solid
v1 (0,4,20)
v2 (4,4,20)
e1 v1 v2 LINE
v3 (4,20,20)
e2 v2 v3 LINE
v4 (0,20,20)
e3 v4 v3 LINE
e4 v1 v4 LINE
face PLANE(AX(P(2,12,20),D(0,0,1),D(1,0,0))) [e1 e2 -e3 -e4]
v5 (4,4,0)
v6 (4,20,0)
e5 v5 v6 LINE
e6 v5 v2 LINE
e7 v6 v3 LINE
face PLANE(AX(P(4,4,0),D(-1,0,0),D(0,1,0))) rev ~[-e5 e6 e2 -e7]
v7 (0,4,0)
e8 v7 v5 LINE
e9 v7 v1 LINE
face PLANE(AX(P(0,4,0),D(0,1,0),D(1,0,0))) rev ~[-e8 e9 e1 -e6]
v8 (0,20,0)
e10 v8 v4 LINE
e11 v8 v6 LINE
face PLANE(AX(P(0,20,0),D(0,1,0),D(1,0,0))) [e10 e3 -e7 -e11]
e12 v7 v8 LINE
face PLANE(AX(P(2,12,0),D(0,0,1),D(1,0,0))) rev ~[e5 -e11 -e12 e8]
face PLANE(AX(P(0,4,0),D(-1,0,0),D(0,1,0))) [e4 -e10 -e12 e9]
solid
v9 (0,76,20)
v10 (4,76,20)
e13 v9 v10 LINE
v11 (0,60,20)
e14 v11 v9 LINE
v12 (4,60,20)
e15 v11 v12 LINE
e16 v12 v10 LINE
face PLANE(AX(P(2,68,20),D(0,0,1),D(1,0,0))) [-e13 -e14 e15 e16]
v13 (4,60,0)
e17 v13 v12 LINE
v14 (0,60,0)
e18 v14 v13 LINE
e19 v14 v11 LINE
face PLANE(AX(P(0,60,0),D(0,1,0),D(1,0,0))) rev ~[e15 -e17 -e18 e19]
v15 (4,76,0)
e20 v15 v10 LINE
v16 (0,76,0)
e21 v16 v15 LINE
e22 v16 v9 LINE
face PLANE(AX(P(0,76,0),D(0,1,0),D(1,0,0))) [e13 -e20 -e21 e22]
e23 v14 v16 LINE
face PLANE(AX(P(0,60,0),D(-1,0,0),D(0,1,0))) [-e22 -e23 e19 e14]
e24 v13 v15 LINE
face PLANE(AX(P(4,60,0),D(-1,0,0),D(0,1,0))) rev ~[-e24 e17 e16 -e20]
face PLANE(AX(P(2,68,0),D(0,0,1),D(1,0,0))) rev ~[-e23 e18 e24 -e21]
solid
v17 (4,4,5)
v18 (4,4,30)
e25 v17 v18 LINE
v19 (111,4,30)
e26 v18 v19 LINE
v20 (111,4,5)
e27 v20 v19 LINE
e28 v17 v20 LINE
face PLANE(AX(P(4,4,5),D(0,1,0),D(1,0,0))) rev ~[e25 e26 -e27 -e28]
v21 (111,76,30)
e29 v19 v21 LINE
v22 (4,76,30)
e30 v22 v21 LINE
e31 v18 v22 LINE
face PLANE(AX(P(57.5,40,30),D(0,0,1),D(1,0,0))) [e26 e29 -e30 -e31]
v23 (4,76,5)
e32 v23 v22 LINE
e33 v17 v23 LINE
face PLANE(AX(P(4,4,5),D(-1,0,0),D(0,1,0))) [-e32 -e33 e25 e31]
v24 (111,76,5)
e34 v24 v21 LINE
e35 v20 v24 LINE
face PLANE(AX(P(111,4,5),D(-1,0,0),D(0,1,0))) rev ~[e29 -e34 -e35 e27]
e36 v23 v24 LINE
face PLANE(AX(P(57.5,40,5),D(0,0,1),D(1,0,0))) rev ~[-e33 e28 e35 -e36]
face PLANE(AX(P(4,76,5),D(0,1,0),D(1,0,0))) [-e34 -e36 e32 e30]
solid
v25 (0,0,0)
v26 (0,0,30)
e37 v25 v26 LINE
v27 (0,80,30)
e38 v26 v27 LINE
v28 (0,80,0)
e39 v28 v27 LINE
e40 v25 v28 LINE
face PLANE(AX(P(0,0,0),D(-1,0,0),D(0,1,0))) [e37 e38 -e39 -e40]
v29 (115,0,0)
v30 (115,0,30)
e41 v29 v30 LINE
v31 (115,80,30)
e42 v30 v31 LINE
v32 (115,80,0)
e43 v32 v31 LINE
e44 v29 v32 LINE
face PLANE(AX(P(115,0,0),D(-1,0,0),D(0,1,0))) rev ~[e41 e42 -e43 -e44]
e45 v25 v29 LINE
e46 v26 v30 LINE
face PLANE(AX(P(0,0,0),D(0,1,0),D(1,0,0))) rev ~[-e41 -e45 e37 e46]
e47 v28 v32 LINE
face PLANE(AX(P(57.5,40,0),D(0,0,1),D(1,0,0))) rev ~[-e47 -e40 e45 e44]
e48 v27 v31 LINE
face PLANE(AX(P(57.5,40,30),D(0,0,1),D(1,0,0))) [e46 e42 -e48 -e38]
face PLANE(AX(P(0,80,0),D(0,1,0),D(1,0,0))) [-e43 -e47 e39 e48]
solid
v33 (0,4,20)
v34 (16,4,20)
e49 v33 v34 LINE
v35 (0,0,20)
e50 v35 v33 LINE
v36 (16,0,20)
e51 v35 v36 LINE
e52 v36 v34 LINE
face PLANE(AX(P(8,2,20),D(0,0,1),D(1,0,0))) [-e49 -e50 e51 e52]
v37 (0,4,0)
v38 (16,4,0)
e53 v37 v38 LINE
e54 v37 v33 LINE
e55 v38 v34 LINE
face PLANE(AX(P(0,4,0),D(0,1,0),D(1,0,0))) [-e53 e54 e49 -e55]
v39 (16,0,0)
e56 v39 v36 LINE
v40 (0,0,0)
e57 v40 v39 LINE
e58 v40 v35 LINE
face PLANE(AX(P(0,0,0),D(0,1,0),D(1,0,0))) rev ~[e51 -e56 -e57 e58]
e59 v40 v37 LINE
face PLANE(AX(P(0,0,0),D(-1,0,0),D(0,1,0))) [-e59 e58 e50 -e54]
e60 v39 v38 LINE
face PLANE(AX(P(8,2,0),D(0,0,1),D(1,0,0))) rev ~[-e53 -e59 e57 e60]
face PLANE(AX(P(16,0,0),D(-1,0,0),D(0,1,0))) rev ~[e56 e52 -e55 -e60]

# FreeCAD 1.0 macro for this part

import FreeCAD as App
import Part
import Sketcher

V = App.Vector

doc = App.newDocument("Part")
params = doc.addObject("Spreadsheet::Sheet", "Params")
for row, (alias, value) in enumerate([
    ("sketch1_width", "115 mm"),
    ("sketch1_height", "80 mm"),
    ("pad1_length", "30 mm"),
    ("sketch2_width", "107 mm"),
    ("sketch2_height", "72 mm"),
    ("pad2_length", "25 mm"),
    ("sketch3_width", "4 mm"),
    ("sketch3_height", "16 mm"),
    ("pad3_length", "20 mm"),
    ("sketch4_width", "4 mm"),
    ("sketch4_height", "16 mm"),
    ("pad4_length", "20 mm"),
    ("sketch5_width", "16 mm"),
    ("sketch5_height", "4 mm"),
    ("pad5_length", "20 mm"),
], start=1):
    params.set(f"A{row}", alias)
    params.set(f"B{row}", "=" + value)
    params.setAlias(f"B{row}", alias)

body = doc.addObject("PartDesign::Body", "Body")

sketch1 = doc.addObject("Sketcher::SketchObject", "Sketch")
body.addObject(sketch1)
sketch1.AttachmentSupport = (doc.XY_Plane, [""])
sketch1.MapMode = "FlatFace"
sketch1.addGeometry(Part.LineSegment(V(0, 80, 0), V(0, 0, 0)), False)
sketch1.addGeometry(Part.LineSegment(V(0, 0, 0), V(115, 0, 0)), False)
sketch1.addGeometry(Part.LineSegment(V(115, 0, 0), V(115, 80, 0)), False)
sketch1.addGeometry(Part.LineSegment(V(115, 80, 0), V(0, 80, 0)), False)
sketch1.addConstraint(Sketcher.Constraint("Coincident", 0, 2, 1, 1))
sketch1.addConstraint(Sketcher.Constraint("Coincident", 1, 2, 2, 1))
sketch1.addConstraint(Sketcher.Constraint("Coincident", 2, 2, 3, 1))
sketch1.addConstraint(Sketcher.Constraint("Coincident", 3, 2, 0, 1))
sketch1.addConstraint(Sketcher.Constraint("Vertical", 0))
sketch1.addConstraint(Sketcher.Constraint("Horizontal", 1))
sketch1.addConstraint(Sketcher.Constraint("Vertical", 2))
sketch1.addConstraint(Sketcher.Constraint("Horizontal", 3))
sketch1.addConstraint(Sketcher.Constraint("Coincident", 0, 2, -1, 1))
sketch1.addConstraint(Sketcher.Constraint("DistanceX", 1, 1, 1, 2, 115.0))
sketch1.addConstraint(Sketcher.Constraint("DistanceY", 0, 2, 0, 1, 80.0))
sketch1.setExpression("Constraints[9]", "Params.sketch1_width")
sketch1.setExpression("Constraints[10]", "Params.sketch1_height")
pad1 = doc.addObject("PartDesign::Pad", "Pad")
body.addObject(pad1)
pad1.Profile = sketch1
pad1.setExpression("Length", "Params.pad1_length")
body2 = doc.addObject("PartDesign::Body", "Body001")

sketch2 = doc.addObject("Sketcher::SketchObject", "Sketch001")
body2.addObject(sketch2)
sketch2.AttachmentSupport = (doc.getObject("XY_Plane001"), [""])
sketch2.MapMode = "FlatFace"
sketch2.AttachmentOffset = App.Placement(V(0, 0, 5), App.Rotation())
sketch2.addGeometry(Part.LineSegment(V(4, 76, 0), V(4, 4, 0)), False)
sketch2.addGeometry(Part.LineSegment(V(4, 4, 0), V(111, 4, 0)), False)
sketch2.addGeometry(Part.LineSegment(V(111, 4, 0), V(111, 76, 0)), False)
sketch2.addGeometry(Part.LineSegment(V(111, 76, 0), V(4, 76, 0)), False)
sketch2.addConstraint(Sketcher.Constraint("Coincident", 0, 2, 1, 1))
sketch2.addConstraint(Sketcher.Constraint("Coincident", 1, 2, 2, 1))
sketch2.addConstraint(Sketcher.Constraint("Coincident", 2, 2, 3, 1))
sketch2.addConstraint(Sketcher.Constraint("Coincident", 3, 2, 0, 1))
sketch2.addConstraint(Sketcher.Constraint("Vertical", 0))
sketch2.addConstraint(Sketcher.Constraint("Horizontal", 1))
sketch2.addConstraint(Sketcher.Constraint("Vertical", 2))
sketch2.addConstraint(Sketcher.Constraint("Horizontal", 3))
sketch2.addConstraint(Sketcher.Constraint("DistanceX", 1, 1, 1, 2, 107.0))
sketch2.addConstraint(Sketcher.Constraint("DistanceY", 0, 2, 0, 1, 72.0))
sketch2.addConstraint(Sketcher.Constraint("DistanceX", -1, 1, 0, 2, 4.0))
sketch2.addConstraint(Sketcher.Constraint("DistanceY", -1, 1, 0, 2, 4.0))
sketch2.setExpression("Constraints[8]", "Params.sketch2_width")
sketch2.setExpression("Constraints[9]", "Params.sketch2_height")
pad2 = doc.addObject("PartDesign::Pad", "Pad001")
body2.addObject(pad2)
pad2.Profile = sketch2
pad2.setExpression("Length", "Params.pad2_length")
body3 = doc.addObject("PartDesign::Body", "Body002")

sketch3 = doc.addObject("Sketcher::SketchObject", "Sketch002")
body3.addObject(sketch3)
sketch3.AttachmentSupport = (doc.getObject("XY_Plane002"), [""])
sketch3.MapMode = "FlatFace"
sketch3.addGeometry(Part.LineSegment(V(0, 20, 0), V(0, 4, 0)), False)
sketch3.addGeometry(Part.LineSegment(V(0, 4, 0), V(4, 4, 0)), False)
sketch3.addGeometry(Part.LineSegment(V(4, 4, 0), V(4, 20, 0)), False)
sketch3.addGeometry(Part.LineSegment(V(4, 20, 0), V(0, 20, 0)), False)
sketch3.addConstraint(Sketcher.Constraint("Coincident", 0, 2, 1, 1))
sketch3.addConstraint(Sketcher.Constraint("Coincident", 1, 2, 2, 1))
sketch3.addConstraint(Sketcher.Constraint("Coincident", 2, 2, 3, 1))
sketch3.addConstraint(Sketcher.Constraint("Coincident", 3, 2, 0, 1))
sketch3.addConstraint(Sketcher.Constraint("Vertical", 0))
sketch3.addConstraint(Sketcher.Constraint("Horizontal", 1))
sketch3.addConstraint(Sketcher.Constraint("Vertical", 2))
sketch3.addConstraint(Sketcher.Constraint("Horizontal", 3))
sketch3.addConstraint(Sketcher.Constraint("PointOnObject", 0, 2, -2))
sketch3.addConstraint(Sketcher.Constraint("DistanceX", 1, 1, 1, 2, 4.0))
sketch3.addConstraint(Sketcher.Constraint("DistanceY", 0, 2, 0, 1, 16.0))
sketch3.addConstraint(Sketcher.Constraint("DistanceY", -1, 1, 0, 2, 4.0))
sketch3.setExpression("Constraints[9]", "Params.sketch3_width")
sketch3.setExpression("Constraints[10]", "Params.sketch3_height")
pad3 = doc.addObject("PartDesign::Pad", "Pad002")
body3.addObject(pad3)
pad3.Profile = sketch3
pad3.setExpression("Length", "Params.pad3_length")
body4 = doc.addObject("PartDesign::Body", "Body003")

sketch4 = doc.addObject("Sketcher::SketchObject", "Sketch003")
body4.addObject(sketch4)
sketch4.AttachmentSupport = (doc.getObject("XY_Plane003"), [""])
sketch4.MapMode = "FlatFace"
sketch4.addGeometry(Part.LineSegment(V(0, 76, 0), V(0, 60, 0)), False)
sketch4.addGeometry(Part.LineSegment(V(0, 60, 0), V(4, 60, 0)), False)
sketch4.addGeometry(Part.LineSegment(V(4, 60, 0), V(4, 76, 0)), False)
sketch4.addGeometry(Part.LineSegment(V(4, 76, 0), V(0, 76, 0)), False)
sketch4.addConstraint(Sketcher.Constraint("Coincident", 0, 2, 1, 1))
sketch4.addConstraint(Sketcher.Constraint("Coincident", 1, 2, 2, 1))
sketch4.addConstraint(Sketcher.Constraint("Coincident", 2, 2, 3, 1))
sketch4.addConstraint(Sketcher.Constraint("Coincident", 3, 2, 0, 1))
sketch4.addConstraint(Sketcher.Constraint("Vertical", 0))
sketch4.addConstraint(Sketcher.Constraint("Horizontal", 1))
sketch4.addConstraint(Sketcher.Constraint("Vertical", 2))
sketch4.addConstraint(Sketcher.Constraint("Horizontal", 3))
sketch4.addConstraint(Sketcher.Constraint("PointOnObject", 0, 2, -2))
sketch4.addConstraint(Sketcher.Constraint("DistanceX", 1, 1, 1, 2, 4.0))
sketch4.addConstraint(Sketcher.Constraint("DistanceY", 0, 2, 0, 1, 16.0))
sketch4.addConstraint(Sketcher.Constraint("DistanceY", -1, 1, 0, 2, 60.0))
sketch4.setExpression("Constraints[9]", "Params.sketch4_width")
sketch4.setExpression("Constraints[10]", "Params.sketch4_height")
pad4 = doc.addObject("PartDesign::Pad", "Pad003")
body4.addObject(pad4)
pad4.Profile = sketch4
pad4.setExpression("Length", "Params.pad4_length")
body5 = doc.addObject("PartDesign::Body", "Body004")

sketch5 = doc.addObject("Sketcher::SketchObject", "Sketch004")
body5.addObject(sketch5)
sketch5.AttachmentSupport = (doc.getObject("XY_Plane004"), [""])
sketch5.MapMode = "FlatFace"
sketch5.addGeometry(Part.LineSegment(V(0, 4, 0), V(0, 0, 0)), False)
sketch5.addGeometry(Part.LineSegment(V(0, 0, 0), V(16, 0, 0)), False)
sketch5.addGeometry(Part.LineSegment(V(16, 0, 0), V(16, 4, 0)), False)
sketch5.addGeometry(Part.LineSegment(V(16, 4, 0), V(0, 4, 0)), False)
sketch5.addConstraint(Sketcher.Constraint("Coincident", 0, 2, 1, 1))
sketch5.addConstraint(Sketcher.Constraint("Coincident", 1, 2, 2, 1))
sketch5.addConstraint(Sketcher.Constraint("Coincident", 2, 2, 3, 1))
sketch5.addConstraint(Sketcher.Constraint("Coincident", 3, 2, 0, 1))
sketch5.addConstraint(Sketcher.Constraint("Vertical", 0))
sketch5.addConstraint(Sketcher.Constraint("Horizontal", 1))
sketch5.addConstraint(Sketcher.Constraint("Vertical", 2))
sketch5.addConstraint(Sketcher.Constraint("Horizontal", 3))
sketch5.addConstraint(Sketcher.Constraint("Coincident", 0, 2, -1, 1))
sketch5.addConstraint(Sketcher.Constraint("DistanceX", 1, 1, 1, 2, 16.0))
sketch5.addConstraint(Sketcher.Constraint("DistanceY", 0, 2, 0, 1, 4.0))
sketch5.setExpression("Constraints[9]", "Params.sketch5_width")
sketch5.setExpression("Constraints[10]", "Params.sketch5_height")
pad5 = doc.addObject("PartDesign::Pad", "Pad004")
body5.addObject(pad5)
pad5.Profile = sketch5
pad5.setExpression("Length", "Params.pad5_length")

doc.recompute()
